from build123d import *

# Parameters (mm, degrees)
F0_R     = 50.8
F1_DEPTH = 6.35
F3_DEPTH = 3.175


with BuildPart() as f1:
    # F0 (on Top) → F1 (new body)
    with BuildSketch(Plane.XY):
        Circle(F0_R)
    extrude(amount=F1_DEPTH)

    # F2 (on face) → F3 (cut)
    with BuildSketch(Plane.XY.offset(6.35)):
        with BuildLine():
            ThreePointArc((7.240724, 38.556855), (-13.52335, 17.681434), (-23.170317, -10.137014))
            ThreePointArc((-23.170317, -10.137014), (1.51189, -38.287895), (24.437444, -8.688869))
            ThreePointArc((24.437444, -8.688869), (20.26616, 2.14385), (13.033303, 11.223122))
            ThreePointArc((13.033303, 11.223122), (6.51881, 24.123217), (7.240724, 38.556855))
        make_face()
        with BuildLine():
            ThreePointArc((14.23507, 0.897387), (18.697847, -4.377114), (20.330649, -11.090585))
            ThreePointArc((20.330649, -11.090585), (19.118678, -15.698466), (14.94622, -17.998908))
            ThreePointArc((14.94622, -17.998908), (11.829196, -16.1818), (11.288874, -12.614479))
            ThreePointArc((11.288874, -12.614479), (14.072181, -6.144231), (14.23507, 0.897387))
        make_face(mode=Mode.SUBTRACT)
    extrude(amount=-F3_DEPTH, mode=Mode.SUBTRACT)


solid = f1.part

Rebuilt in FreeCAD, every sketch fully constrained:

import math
import FreeCAD as App
import Part
import Sketcher

V = App.Vector
Q = App.Units.Quantity

doc = App.newDocument("Part")
body = doc.addObject("PartDesign::Body", "Body")

# Sketch on XY plane
sketch1 = body.newObject("Sketcher::SketchObject", "Sketch")
sketch1.AttachmentSupport = (doc.getObject("XY_Plane"), [""])
sketch1.MapMode = "FlatFace"
sketch1.addGeometry(Part.Circle(V(0, 0, 0), V(0, 0, 1), 51), False)
sketch1.addConstraint([
    Sketcher.Constraint("Coincident", 0, 3, -1, 1),
    Sketcher.Constraint("Diameter", 0, Q("4 in")),
])
pad1 = body.newObject("PartDesign::Pad", "Pad")
pad1.Profile = sketch1
pad1.Length = Q("0.25 in")

# Sketch on XY plane
sketch2 = body.newObject("Sketcher::SketchObject", "Sketch001")
sketch2.AttachmentSupport = (doc.getObject("XY_Plane"), [""])
sketch2.MapMode = "FlatFace"
sketch2.AttachmentOffset = App.Placement(V(0, 0, 0.25 * 25.4), App.Rotation())
sketch2.addGeometry([
    Part.ArcOfCircle(Part.Circle(V(42.6, -17.4, 0), V(0, 0, 1), 66.1), math.radians(122), math.radians(174)),  # 0
    Part.ArcOfCircle(Part.Circle(V(0.8, -14, 0), V(0, 0, 1), 24.3), math.radians(171), math.radians(373)),  # 1
    Part.ArcOfCircle(Part.Circle(V(-12.9, -16.8, 0), V(0, 0, 1), 38.2), math.radians(12), math.radians(47)),  # 2
    Part.ArcOfCircle(Part.Circle(V(34.1, 30, 0), V(0, 0, 1), 28.2), math.radians(162), math.radians(222)),  # 3
    Part.ArcOfCircle(Part.Circle(V(-4, -2.2, 0), V(0, 0, 1), 18.5), math.radians(-34), math.radians(10)),  # 4
    Part.ArcOfCircle(Part.Circle(V(5.3, -11.2, 0), V(0, 0, 1), 15), math.radians(0), math.radians(54)),  # 5
    Part.ArcOfCircle(Part.Circle(V(14.3, -12, 0), V(0, 0, 1), 6), math.radians(-84), math.radians(8)),  # 6
    Part.ArcOfCircle(Part.Circle(V(15.3, -13.8, 0), V(0, 0, 1), 4.2), math.radians(163), math.radians(265)),  # 7
], False)
sketch2.addConstraint([
    Sketcher.Constraint("Coincident", 0, 2, 1, 1),
    Sketcher.Constraint("Coincident", 1, 2, 2, 1),
    Sketcher.Constraint("Coincident", 2, 2, 3, 2),
    Sketcher.Constraint("Coincident", 3, 1, 0, 1),
    Sketcher.Constraint("Coincident", 4, 2, 5, 2),
    Sketcher.Constraint("Coincident", 5, 1, 6, 2),
    Sketcher.Constraint("Coincident", 6, 1, 7, 2),
    Sketcher.Constraint("Coincident", 7, 1, 4, 1),
    Sketcher.Constraint("Radius", 2, 38.192142),
    Sketcher.Constraint("Radius", 4, 18.49782),
    Sketcher.Constraint("Radius", 5, 15.036112),
    Sketcher.Constraint("Radius", 7, 4.179171),
    Sketcher.Constraint("DistanceY", 5, 3, 5, 1, Q("0.0039999 in")),
    Sketcher.Constraint("Radius", 0, 66.142087),
    Sketcher.Constraint("Radius", 1, 24.260392),
    Sketcher.Constraint("Radius", 3, 28.234117),
    Sketcher.Constraint("Radius", 6, 6.048073),
    Sketcher.Constraint("DistanceX", -1, 1, 6, 3, 14.348398),
    Sketcher.Constraint("DistanceY", 0, 3, 6, 3, 5.374602),
    Sketcher.Constraint("DistanceX", -1, 1, 0, 3, 42.576741),
    Sketcher.Constraint("DistanceX", -1, 1, 1, 3, 0.774272),
    Sketcher.Constraint("DistanceY", 1, 3, -1, 1, 14.038719),
    Sketcher.Constraint("DistanceX", -1, 1, 3, 3, 34.139511),
    Sketcher.Constraint("DistanceY", -1, 1, 3, 3, 29.97661),
    Sketcher.Constraint("DistanceX", -1, 1, 5, 3, 5.294881),
    Sketcher.Constraint("DistanceY", 5, 3, -1, 1, 11.192181),
    Sketcher.Constraint("DistanceY", 1, 2, -1, 1, 8.688869),
    Sketcher.Constraint("DistanceY", -1, 1, 2, 2, 11.223122),
    Sketcher.Constraint("DistanceX", -1, 1, 4, 2, 14.23507),
    Sketcher.Constraint("DistanceX", -1, 1, 6, 1, 14.94622),
    Sketcher.Constraint("DistanceY", 7, 1, -1, 1, 12.614479),
    Sketcher.Constraint("DistanceY", 0, 3, 4, 3, 15.151591),
])
pocket1 = body.newObject("PartDesign::Pocket", "Pocket")
pocket1.Profile = sketch2
pocket1.Length = Q("0.125 in")

doc.recompute()
